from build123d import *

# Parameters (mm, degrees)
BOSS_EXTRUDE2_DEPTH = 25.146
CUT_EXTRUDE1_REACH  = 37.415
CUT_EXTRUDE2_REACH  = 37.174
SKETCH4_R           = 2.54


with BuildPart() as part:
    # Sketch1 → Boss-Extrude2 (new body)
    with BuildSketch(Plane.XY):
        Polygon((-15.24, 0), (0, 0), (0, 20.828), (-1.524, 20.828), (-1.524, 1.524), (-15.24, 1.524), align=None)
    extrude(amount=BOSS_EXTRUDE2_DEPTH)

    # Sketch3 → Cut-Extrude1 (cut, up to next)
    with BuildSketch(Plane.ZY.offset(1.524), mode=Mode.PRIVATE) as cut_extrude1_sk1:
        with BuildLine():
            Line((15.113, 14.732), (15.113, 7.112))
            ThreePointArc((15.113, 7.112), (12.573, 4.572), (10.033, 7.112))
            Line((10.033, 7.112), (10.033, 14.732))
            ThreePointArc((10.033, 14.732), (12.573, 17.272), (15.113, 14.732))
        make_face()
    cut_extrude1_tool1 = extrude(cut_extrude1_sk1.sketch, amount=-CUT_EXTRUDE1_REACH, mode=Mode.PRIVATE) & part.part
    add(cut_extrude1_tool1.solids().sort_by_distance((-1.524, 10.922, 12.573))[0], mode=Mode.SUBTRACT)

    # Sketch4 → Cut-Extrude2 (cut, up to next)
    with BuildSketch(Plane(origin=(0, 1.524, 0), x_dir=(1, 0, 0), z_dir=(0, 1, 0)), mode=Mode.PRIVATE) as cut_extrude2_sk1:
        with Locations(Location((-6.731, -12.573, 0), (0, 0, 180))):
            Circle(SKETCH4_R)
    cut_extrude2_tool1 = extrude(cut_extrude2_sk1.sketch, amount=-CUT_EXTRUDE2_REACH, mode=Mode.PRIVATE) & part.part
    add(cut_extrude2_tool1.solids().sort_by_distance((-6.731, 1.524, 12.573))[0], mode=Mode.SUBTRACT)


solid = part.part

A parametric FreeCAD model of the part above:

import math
import FreeCAD as App
import Part
import Sketcher

V = App.Vector
Q = App.Units.Quantity


def add_polygon(sketch, points):
    """Adds a closed chain of lines whose ends are joined by coincident constraints."""
    first, n = sketch.GeometryCount, len(points)
    for a, b in zip(points, points[1:] + points[:1]):
        sketch.addGeometry(Part.LineSegment(App.Vector(*a, 0), App.Vector(*b, 0)), False)
    for i in range(n):
        sketch.addConstraint(Sketcher.Constraint("Coincident", first + i, 2, first + (i + 1) % n, 1))

doc = App.newDocument("Part")
params = doc.addObject("Spreadsheet::Sheet", "Params")
for row, (alias, value) in enumerate([
    ("sketch1_width", "0.6 in"),
    ("sketch1_width2", "0.06 in"),
    ("sketch1_height", "0.82 in"),
    ("pad1_length", "0.99 in"),
    ("sketch2_radius", "0.1 in"),
    ("sketch2_width", "0.3 in"),
    ("sketch3_diameter", "0.2 in"),
], start=1):
    params.set(f"A{row}", alias)
    params.set(f"B{row}", "=" + value)
    params.setAlias(f"B{row}", alias)

body = doc.addObject("PartDesign::Body", "Body")

# Sketch on XY plane
sketch1 = body.newObject("Sketcher::SketchObject", "Sketch")
sketch1.AttachmentSupport = (doc.getObject("XY_Plane"), [""])
sketch1.MapMode = "FlatFace"
add_polygon(sketch1, [(-15.24, 0), (0, 0), (0, 20.828), (-1.524, 20.828), (-1.524, 1.524), (-15.24, 1.524)])  # lines 0-5
sketch1.addConstraint([
    Sketcher.Constraint("Horizontal", 0),
    Sketcher.Constraint("Vertical", 1),
    Sketcher.Constraint("Horizontal", 2),
    Sketcher.Constraint("Vertical", 3),
    Sketcher.Constraint("Horizontal", 4),
    Sketcher.Constraint("Vertical", 5),
    Sketcher.Constraint("Coincident", 0, 2, -1, 1),
    Sketcher.Constraint("Equal", 2, 5),
    Sketcher.Constraint("DistanceX", 0, 1, 0, 2, Q("0.6 in")),
    Sketcher.Constraint("DistanceX", 2, 2, 2, 1, Q("0.06 in")),
    Sketcher.Constraint("DistanceY", 1, 1, 1, 2, Q("0.82 in")),
])
sketch1.setExpression("Constraints[14]", "Params.sketch1_width")
sketch1.setExpression("Constraints[15]", "Params.sketch1_width2")
sketch1.setExpression("Constraints[16]", "Params.sketch1_height")
pad1 = body.newObject("PartDesign::Pad", "Pad")
pad1.Profile = sketch1
pad1.setExpression("Length", "Params.pad1_length")

# Sketch on YZ plane
sketch2 = body.newObject("Sketcher::SketchObject", "Sketch001")
sketch2.AttachmentSupport = (doc.getObject("YZ_Plane"), [""])
sketch2.MapMode = "FlatFace"
sketch2.AttachmentOffset = App.Placement(V(0, 0, -0.06 * 25.4), App.Rotation())
sketch2.addGeometry([
    Part.LineSegment(V(7.112, 15.113, 0), V(14.732, 15.113, 0)),
    Part.ArcOfCircle(Part.Circle(V(14.732, 12.573, 0), V(0, 0, 1), 2.54), math.radians(-90), math.radians(90)),
    Part.LineSegment(V(14.732, 10.033, 0), V(7.112, 10.033, 0)),
    Part.ArcOfCircle(Part.Circle(V(7.112, 12.573, 0), V(0, 0, 1), 2.54), math.radians(90), math.radians(270)),
], False)
sketch2.addConstraint([
    Sketcher.Constraint("Tangent", 0, 2, 1, 2),
    Sketcher.Constraint("Tangent", 1, 1, 2, 1),
    Sketcher.Constraint("Tangent", 2, 2, 3, 2),
    Sketcher.Constraint("Tangent", 3, 1, 0, 1),
    Sketcher.Constraint("Horizontal", 0),
    Sketcher.Constraint("Horizontal", 2),
    Sketcher.Constraint("Radius", 1, Q("0.1 in")),
    Sketcher.Constraint("DistanceX", 0, 1, 0, 2, Q("0.3 in")),
    Sketcher.Constraint("DistanceX", -1, 1, 1, 3, Q("0.58 in")),
    Sketcher.Constraint("DistanceY", -1, 1, 1, 3, Q("0.495 in")),
])
sketch2.setExpression("Constraints[6]", "Params.sketch2_radius")
sketch2.setExpression("Constraints[7]", "Params.sketch2_width")
pocket1 = body.newObject("PartDesign::Pocket", "Pocket")
pocket1.Profile = sketch2
pocket1.Type = "UpToFirst"
pocket1.Reversed = True

# Sketch on XZ plane
sketch3 = body.newObject("Sketcher::SketchObject", "Sketch002")
sketch3.AttachmentSupport = (doc.getObject("XZ_Plane"), [""])
sketch3.MapMode = "FlatFace"
sketch3.AttachmentOffset = App.Placement(V(0, 0, -0.06 * 25.4), App.Rotation())
sketch3.addGeometry(Part.Circle(V(-6.731, 12.573, 0), V(0, 0, 1), 2.54), False)
sketch3.addConstraint([
    Sketcher.Constraint("Diameter", 0, Q("0.2 in")),
    Sketcher.Constraint("DistanceX", 0, 3, -1, 1, Q("0.265 in")),
    Sketcher.Constraint("DistanceY", -1, 1, 0, 3, Q("0.495 in")),
])
sketch3.setExpression("Constraints[0]", "Params.sketch3_diameter")
pocket2 = body.newObject("PartDesign::Pocket", "Pocket001")
pocket2.Profile = sketch3
pocket2.Type = "UpToFirst"
pocket2.Reversed = True

doc.recompute()
